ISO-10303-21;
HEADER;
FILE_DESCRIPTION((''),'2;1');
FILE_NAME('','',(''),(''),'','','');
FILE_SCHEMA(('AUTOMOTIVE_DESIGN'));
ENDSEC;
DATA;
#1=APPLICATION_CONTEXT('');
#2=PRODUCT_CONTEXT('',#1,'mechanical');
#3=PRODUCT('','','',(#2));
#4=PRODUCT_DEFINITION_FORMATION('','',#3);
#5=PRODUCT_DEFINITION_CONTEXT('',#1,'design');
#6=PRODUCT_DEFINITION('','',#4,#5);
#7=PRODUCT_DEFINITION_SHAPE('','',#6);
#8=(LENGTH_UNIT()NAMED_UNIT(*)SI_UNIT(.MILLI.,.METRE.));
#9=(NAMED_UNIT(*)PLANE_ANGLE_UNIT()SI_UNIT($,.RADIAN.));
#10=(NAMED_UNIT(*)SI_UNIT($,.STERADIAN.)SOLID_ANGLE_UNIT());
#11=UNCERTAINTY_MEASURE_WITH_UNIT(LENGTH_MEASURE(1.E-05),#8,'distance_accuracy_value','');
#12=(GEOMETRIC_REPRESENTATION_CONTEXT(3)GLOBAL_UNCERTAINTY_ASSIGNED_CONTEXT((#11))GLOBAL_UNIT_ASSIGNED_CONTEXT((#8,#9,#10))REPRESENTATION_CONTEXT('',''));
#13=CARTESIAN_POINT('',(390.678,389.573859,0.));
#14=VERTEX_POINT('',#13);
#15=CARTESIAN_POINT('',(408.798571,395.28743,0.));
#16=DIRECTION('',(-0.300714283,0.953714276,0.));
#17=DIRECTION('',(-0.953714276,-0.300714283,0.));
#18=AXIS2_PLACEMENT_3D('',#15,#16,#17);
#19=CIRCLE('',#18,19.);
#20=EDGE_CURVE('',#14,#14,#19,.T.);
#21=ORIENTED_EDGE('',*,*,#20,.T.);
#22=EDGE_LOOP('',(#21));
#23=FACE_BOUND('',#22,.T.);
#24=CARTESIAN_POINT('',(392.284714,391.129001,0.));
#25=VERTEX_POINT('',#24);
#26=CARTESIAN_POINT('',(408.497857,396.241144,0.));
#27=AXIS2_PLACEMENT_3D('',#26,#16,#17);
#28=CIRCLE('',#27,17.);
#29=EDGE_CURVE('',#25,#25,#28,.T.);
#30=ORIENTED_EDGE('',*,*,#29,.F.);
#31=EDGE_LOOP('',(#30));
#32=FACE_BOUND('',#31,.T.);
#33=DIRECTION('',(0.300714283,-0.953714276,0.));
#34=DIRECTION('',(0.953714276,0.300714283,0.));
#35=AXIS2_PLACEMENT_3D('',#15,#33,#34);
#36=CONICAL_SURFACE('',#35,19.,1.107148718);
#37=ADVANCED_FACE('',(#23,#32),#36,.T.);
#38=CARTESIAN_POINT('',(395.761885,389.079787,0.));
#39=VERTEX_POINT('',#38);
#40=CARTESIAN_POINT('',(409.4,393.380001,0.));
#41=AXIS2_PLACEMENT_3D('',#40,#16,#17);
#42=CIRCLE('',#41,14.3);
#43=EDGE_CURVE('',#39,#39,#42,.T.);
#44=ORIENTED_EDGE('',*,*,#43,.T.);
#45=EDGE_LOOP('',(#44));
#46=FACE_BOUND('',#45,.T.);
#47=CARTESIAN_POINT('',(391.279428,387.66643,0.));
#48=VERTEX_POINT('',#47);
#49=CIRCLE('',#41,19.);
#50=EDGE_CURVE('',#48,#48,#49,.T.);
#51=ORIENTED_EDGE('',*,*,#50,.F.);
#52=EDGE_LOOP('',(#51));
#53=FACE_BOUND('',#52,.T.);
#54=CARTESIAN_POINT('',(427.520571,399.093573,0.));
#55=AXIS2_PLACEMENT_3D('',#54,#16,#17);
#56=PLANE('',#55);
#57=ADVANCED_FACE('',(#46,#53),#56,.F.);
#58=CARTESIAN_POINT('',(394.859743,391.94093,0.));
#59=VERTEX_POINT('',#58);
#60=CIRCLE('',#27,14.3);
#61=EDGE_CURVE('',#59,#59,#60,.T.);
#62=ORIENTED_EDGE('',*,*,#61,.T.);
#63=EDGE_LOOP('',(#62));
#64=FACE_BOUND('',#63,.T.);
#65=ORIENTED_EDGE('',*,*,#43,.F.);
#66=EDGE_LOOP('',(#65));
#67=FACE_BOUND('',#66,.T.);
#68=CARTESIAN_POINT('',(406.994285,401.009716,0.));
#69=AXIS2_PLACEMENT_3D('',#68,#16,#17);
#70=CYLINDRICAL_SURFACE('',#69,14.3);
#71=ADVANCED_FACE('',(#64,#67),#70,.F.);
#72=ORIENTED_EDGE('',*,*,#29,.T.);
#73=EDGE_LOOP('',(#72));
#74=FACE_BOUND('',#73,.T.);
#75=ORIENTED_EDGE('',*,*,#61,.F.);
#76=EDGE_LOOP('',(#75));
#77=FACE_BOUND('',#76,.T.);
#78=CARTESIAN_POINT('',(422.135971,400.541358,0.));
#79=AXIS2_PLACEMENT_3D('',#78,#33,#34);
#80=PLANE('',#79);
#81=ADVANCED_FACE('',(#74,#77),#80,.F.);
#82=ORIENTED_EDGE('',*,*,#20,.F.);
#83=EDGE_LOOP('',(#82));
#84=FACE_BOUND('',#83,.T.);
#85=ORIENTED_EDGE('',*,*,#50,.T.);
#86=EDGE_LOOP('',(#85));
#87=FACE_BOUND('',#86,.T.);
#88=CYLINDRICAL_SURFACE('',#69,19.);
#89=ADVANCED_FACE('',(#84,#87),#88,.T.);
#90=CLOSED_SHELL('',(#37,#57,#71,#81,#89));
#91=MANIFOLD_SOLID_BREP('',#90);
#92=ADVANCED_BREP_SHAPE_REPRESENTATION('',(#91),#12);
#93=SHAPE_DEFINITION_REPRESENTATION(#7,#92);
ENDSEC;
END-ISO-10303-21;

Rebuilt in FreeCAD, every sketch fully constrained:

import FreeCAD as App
import Part
import Sketcher

V = App.Vector
Q = App.Units.Quantity

doc = App.newDocument("Part")
body = doc.addObject("PartDesign::Body", "Body")

# Sketch on XY plane
sketch1 = doc.addObject("Sketcher::SketchObject", "Sketch")
body.addObject(sketch1)
sketch1.AttachmentSupport = (doc.XY_Plane, [""])
sketch1.MapMode = "FlatFace"
sketch1.addGeometry([
    Part.LineSegment(V(424.7, 401.4, 0), V(422.1, 400.5, 0)),  # 0
    Part.LineSegment(V(422.1, 400.5, 0), V(423, 397.7, 0)),  # 1
    Part.LineSegment(V(423, 397.7, 0), V(427.5, 399.1, 0)),  # 2
    Part.LineSegment(V(427.5, 399.1, 0), V(426.9, 401, 0)),  # 3
    Part.LineSegment(V(426.9, 401, 0), V(424.7, 401.4, 0)),  # 4
], False)
sketch1.addGeometry(Part.LineSegment(V(408.5, 396.2, 0), V(409.4, 393.4, 0)), True)  # axis
sketch1.addConstraint([
    Sketcher.Constraint("Coincident", 0, 2, 1, 1),
    Sketcher.Constraint("Coincident", 1, 2, 2, 1),
    Sketcher.Constraint("Coincident", 2, 2, 3, 1),
    Sketcher.Constraint("Coincident", 3, 2, 4, 1),
    Sketcher.Constraint("Coincident", 4, 2, 0, 1),
    Sketcher.Constraint("Perpendicular", 0, 1),
    Sketcher.Constraint("Perpendicular", 1, 2),
    Sketcher.Constraint("Perpendicular", 2, 3),
    Sketcher.Constraint("Parallel", 3, 5),
    Sketcher.Constraint("Equal", 1, 5),
    Sketcher.Constraint("Distance", 1, Q("3 mm")),
    Sketcher.Constraint("Distance", 3, Q("2 mm")),
    Sketcher.Constraint("Distance", 0, Q("2.7 mm")),
    Sketcher.Constraint("Distance", 2, Q("4.7 mm")),
    Sketcher.Constraint("DistanceX", -1, 1, 5, 2, Q("409.4 mm")),
    Sketcher.Constraint("DistanceY", -1, 1, 5, 2, Q("393.380001 mm")),
    Sketcher.Constraint("DistanceY", -1, 1, 3, 2, Q("401.001001 mm")),
    Sketcher.Constraint("DistanceX", -1, 1, 4, 2, Q("424.710999 mm")),
    Sketcher.Constraint("DistanceX", 0, 2, 2, 2, Q("5.3846 mm")),
])
revolution = doc.addObject("PartDesign::Revolution", "Revolution")
body.addObject(revolution)
revolution.Profile = sketch1
revolution.ReferenceAxis = (sketch1, ["Axis0"])
revolution.Angle = 360

doc.recompute()
